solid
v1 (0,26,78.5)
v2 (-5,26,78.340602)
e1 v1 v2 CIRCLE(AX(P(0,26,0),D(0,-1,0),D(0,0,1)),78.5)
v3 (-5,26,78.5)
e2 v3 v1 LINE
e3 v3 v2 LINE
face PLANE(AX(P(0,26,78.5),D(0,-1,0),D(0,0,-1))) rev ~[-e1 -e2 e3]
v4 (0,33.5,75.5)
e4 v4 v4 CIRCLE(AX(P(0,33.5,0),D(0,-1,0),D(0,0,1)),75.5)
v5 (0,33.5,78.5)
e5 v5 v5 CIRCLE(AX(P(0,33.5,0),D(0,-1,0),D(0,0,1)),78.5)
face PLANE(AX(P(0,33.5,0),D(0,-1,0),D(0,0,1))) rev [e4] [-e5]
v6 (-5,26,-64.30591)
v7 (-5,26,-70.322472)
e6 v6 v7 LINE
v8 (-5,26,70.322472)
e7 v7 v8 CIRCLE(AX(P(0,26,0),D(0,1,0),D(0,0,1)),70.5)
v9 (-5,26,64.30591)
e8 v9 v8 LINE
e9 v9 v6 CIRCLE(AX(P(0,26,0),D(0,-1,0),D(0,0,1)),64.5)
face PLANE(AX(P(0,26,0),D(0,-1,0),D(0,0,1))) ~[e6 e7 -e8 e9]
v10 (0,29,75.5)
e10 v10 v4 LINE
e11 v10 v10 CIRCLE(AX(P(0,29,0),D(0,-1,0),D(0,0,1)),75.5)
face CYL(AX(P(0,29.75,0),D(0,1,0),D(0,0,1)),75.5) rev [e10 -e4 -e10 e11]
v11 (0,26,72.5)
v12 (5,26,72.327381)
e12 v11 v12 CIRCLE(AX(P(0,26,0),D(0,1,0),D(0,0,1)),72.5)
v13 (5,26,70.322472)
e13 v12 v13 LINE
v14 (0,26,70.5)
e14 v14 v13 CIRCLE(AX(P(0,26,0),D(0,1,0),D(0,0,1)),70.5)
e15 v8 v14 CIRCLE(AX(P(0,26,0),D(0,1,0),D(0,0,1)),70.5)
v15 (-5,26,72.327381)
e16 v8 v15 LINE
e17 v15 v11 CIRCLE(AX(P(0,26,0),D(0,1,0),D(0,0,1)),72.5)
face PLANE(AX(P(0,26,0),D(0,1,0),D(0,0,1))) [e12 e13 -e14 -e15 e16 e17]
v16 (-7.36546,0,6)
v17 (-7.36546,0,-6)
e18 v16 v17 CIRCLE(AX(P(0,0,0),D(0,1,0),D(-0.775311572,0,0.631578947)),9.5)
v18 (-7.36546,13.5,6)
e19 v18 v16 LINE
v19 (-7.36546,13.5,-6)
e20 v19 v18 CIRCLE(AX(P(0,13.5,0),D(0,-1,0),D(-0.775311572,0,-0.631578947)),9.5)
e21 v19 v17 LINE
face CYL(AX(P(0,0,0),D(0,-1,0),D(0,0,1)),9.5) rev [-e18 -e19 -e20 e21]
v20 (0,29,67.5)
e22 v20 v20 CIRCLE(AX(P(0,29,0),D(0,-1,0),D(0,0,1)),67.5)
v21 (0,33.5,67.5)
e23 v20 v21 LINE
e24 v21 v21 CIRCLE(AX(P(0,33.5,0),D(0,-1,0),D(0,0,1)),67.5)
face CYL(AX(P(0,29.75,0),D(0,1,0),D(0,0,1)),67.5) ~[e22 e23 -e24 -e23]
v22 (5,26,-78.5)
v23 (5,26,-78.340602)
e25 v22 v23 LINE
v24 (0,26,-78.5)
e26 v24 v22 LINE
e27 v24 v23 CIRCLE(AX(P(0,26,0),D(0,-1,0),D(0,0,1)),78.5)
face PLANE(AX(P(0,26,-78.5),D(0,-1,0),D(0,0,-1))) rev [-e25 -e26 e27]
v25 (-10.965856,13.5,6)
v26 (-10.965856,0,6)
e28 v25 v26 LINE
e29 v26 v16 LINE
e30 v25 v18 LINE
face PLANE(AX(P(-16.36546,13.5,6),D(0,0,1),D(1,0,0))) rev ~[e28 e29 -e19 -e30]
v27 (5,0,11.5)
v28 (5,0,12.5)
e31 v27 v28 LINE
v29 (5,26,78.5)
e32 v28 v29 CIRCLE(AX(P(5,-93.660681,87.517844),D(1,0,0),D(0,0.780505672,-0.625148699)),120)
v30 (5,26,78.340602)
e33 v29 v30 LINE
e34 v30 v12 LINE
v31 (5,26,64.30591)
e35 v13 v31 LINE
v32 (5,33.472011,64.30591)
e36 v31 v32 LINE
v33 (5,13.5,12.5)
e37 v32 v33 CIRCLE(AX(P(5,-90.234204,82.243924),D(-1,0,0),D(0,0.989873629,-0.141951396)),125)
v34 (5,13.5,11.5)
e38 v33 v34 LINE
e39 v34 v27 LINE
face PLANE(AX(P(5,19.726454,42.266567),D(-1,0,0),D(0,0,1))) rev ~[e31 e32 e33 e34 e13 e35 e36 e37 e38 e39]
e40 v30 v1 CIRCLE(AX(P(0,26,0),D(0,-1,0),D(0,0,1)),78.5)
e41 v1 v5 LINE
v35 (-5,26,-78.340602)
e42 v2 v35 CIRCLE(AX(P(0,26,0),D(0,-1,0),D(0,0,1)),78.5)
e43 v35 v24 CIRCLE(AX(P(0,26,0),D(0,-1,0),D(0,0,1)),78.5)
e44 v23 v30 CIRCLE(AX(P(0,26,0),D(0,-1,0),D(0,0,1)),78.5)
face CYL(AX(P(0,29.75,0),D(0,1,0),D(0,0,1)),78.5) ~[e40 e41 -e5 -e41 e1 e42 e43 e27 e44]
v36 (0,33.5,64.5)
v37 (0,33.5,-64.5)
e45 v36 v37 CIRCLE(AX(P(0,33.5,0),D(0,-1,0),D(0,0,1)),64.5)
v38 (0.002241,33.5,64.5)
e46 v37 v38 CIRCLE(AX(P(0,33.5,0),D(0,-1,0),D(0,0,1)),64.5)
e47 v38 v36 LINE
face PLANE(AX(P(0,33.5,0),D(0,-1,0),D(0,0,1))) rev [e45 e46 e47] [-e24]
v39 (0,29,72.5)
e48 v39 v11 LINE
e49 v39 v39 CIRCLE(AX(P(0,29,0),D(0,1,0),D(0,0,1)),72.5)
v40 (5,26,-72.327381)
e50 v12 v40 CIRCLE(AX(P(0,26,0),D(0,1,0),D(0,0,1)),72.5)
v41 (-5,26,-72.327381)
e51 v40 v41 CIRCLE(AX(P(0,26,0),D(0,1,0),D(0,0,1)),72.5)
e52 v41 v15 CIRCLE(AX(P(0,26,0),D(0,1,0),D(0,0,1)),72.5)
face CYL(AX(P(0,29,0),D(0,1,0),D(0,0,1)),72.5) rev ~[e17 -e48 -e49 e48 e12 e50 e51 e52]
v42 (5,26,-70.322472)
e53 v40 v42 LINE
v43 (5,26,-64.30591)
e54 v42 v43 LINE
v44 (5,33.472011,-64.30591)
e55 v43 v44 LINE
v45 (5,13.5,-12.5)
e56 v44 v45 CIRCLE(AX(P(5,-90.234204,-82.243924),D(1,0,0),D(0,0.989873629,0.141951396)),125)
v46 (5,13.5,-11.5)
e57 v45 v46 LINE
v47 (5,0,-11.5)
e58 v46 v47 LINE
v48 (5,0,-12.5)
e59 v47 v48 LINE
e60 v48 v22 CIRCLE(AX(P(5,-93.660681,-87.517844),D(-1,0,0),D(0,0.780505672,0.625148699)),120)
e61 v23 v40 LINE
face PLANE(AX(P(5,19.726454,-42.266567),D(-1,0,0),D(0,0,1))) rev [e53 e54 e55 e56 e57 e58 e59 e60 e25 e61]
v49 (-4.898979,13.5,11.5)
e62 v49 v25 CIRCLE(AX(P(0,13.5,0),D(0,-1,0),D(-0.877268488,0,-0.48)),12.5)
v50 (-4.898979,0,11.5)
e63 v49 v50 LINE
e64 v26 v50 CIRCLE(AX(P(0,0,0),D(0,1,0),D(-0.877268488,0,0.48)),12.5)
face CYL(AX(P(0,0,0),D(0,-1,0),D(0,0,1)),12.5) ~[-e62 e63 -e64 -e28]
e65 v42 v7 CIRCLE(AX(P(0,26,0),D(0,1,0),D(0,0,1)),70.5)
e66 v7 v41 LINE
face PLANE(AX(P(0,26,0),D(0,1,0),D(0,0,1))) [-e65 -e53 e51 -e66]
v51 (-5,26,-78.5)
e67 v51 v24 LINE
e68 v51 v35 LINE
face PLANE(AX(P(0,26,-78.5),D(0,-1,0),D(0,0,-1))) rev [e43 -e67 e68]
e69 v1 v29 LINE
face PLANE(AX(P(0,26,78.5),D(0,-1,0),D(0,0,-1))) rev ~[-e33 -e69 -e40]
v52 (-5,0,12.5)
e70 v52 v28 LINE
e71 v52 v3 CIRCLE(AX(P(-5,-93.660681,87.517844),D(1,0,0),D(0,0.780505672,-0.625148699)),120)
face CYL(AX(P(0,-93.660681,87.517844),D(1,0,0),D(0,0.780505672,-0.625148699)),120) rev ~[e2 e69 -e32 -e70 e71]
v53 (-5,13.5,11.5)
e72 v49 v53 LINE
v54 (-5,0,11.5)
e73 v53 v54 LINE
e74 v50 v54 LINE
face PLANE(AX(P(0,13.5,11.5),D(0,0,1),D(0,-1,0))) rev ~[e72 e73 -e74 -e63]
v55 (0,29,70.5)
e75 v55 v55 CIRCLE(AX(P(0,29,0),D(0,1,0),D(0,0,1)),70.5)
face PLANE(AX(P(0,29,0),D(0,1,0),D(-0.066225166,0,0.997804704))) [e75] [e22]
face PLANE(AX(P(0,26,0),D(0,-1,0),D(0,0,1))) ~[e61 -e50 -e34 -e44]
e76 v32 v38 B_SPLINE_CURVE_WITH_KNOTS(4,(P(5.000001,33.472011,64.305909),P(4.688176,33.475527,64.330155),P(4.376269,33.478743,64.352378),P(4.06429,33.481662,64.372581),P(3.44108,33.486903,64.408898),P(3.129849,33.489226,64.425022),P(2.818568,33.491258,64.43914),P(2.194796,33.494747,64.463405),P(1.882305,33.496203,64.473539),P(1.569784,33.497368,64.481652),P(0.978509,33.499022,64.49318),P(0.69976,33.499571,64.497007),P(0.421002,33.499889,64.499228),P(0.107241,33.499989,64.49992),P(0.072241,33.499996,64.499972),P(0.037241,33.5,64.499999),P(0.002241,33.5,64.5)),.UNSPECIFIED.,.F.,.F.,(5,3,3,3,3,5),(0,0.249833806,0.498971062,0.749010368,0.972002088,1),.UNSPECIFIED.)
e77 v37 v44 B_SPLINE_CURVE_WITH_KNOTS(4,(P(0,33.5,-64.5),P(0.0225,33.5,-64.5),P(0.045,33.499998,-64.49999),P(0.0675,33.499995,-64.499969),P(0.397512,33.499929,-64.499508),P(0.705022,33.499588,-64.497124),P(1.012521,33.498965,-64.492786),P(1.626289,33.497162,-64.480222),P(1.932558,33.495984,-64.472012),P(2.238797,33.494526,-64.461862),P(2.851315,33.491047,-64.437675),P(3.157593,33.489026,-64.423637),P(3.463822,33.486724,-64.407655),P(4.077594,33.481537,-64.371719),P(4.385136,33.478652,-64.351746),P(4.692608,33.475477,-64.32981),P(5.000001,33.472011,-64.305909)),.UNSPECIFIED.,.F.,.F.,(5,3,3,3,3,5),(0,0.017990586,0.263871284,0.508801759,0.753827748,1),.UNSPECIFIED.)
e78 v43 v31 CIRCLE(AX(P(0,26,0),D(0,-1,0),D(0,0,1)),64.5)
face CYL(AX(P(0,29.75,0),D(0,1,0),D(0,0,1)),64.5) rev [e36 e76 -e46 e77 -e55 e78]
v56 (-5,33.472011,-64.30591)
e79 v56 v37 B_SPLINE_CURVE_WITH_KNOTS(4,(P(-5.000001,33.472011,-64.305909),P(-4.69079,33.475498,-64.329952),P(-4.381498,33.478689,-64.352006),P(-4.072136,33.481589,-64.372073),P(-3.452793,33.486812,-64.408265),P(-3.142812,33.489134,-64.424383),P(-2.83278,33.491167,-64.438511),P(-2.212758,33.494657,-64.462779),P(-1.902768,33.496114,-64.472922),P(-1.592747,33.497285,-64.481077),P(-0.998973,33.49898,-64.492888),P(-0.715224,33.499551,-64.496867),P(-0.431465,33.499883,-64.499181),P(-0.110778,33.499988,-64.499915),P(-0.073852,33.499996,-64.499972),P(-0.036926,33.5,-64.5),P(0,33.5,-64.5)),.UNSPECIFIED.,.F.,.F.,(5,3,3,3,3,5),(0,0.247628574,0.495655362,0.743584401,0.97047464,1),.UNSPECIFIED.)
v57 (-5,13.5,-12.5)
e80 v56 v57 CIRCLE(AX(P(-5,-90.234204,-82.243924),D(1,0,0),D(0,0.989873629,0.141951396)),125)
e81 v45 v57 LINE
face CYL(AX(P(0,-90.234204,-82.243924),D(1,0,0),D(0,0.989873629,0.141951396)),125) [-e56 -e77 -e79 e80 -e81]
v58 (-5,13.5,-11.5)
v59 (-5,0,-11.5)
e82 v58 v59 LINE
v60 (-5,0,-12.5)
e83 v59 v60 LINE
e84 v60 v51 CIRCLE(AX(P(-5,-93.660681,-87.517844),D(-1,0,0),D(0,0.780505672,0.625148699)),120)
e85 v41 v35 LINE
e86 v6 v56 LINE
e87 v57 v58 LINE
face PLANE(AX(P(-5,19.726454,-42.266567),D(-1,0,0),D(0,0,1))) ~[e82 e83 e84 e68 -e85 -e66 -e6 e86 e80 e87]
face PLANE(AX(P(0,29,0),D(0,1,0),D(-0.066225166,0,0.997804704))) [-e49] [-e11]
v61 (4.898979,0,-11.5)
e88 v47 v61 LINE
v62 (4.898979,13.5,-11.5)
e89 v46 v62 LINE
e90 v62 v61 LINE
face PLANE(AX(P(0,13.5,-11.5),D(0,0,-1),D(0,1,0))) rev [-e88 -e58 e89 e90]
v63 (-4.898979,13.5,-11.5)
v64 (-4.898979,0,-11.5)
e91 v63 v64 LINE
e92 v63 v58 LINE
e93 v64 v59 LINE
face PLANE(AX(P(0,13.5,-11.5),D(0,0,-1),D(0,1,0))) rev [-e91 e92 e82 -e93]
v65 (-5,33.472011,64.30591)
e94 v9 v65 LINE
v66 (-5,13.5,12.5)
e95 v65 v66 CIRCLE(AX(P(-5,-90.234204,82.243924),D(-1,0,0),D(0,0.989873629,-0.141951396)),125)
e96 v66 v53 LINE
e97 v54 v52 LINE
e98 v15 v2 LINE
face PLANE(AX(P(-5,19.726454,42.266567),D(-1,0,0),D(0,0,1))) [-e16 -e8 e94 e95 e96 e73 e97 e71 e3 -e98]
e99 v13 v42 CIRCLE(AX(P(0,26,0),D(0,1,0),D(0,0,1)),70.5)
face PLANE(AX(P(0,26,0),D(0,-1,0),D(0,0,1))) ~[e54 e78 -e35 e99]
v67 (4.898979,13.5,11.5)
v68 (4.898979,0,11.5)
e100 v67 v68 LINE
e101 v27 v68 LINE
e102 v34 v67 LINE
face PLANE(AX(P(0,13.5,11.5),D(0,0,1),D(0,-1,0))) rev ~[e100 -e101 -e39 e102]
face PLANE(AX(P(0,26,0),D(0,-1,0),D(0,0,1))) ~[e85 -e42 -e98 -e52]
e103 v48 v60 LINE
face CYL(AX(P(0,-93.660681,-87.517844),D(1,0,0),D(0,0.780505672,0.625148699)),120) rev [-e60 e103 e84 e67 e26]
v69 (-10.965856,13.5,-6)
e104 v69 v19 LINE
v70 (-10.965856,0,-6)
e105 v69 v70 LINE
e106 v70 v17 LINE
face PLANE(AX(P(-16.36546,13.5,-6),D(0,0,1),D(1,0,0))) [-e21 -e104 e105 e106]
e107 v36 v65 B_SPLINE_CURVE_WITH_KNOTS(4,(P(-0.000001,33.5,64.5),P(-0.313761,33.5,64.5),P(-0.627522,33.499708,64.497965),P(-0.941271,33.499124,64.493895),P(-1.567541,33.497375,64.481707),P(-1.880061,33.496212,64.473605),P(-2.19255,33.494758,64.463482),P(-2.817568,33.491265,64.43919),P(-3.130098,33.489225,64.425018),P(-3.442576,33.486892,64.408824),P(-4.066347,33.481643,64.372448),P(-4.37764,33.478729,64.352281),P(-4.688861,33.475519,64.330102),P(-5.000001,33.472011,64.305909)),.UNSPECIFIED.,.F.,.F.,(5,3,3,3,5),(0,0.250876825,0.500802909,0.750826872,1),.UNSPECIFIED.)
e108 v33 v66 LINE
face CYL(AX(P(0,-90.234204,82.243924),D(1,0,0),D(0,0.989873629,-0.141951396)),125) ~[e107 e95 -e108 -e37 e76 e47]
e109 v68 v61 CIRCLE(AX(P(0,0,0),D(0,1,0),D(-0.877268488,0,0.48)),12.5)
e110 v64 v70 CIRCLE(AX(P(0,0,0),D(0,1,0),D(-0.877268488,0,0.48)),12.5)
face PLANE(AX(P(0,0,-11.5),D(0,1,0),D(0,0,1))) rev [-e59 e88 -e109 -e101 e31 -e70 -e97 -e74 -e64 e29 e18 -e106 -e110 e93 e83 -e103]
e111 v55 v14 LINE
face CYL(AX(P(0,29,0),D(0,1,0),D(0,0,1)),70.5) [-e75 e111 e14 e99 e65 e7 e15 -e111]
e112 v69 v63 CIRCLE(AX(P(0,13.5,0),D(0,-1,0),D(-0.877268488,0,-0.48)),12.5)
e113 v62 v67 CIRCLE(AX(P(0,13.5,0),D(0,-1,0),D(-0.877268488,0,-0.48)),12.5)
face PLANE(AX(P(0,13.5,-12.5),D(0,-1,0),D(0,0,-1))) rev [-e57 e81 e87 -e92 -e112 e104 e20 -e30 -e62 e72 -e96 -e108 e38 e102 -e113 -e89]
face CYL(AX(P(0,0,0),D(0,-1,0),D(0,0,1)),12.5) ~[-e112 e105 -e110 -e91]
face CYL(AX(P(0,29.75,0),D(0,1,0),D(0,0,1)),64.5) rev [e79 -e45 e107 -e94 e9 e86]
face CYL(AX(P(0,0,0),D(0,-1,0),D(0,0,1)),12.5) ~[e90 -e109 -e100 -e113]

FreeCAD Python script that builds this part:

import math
import FreeCAD as App
import Part
import Sketcher
Q = App.Units.Quantity

doc = App.newDocument("Part")
body = doc.addObject("PartDesign::Body", "Body")

sketch1 = doc.addObject("Sketcher::SketchObject", "Sketch")
body.addObject(sketch1)
sketch1.AttachmentSupport = (doc.XZ_Plane, [""])
sketch1.MapMode = "FlatFace"
sketch1.addGeometry([
    Part.Circle(App.Vector(0, 0, 0), App.Vector(0, 0, 1), 12),
    Part.Circle(App.Vector(0, 0, 0), App.Vector(0, 0, 1), 10),
], False)
sketch1.addConstraint([
    Sketcher.Constraint("Coincident", 0, 3, -1, 1),
    Sketcher.Constraint("Coincident", 1, 3, -1, 1),
    Sketcher.Constraint("Diameter", 0, Q("25 mm")),
    Sketcher.Constraint("Diameter", 1, Q("19 mm")),
])
pad1 = doc.addObject("PartDesign::Pad", "Pad")
body.addObject(pad1)
pad1.Profile = sketch1
pad1.Length = 13.5
pad1.Reversed = True

sketch2 = doc.addObject("Sketcher::SketchObject", "Sketch001")
body.addObject(sketch2)
sketch2.AttachmentSupport = (doc.XZ_Plane, [""])
sketch2.MapMode = "FlatFace"
sketch2.AttachmentOffset = App.Placement(App.Vector(0, 0, -13.5), App.Rotation())
sketch2.addGeometry([
    Part.LineSegment(App.Vector(-16, -6, 0), App.Vector(-16, 6, 0)),
    Part.LineSegment(App.Vector(-16, 6, 0), App.Vector(-7, 6, 0)),
    Part.LineSegment(App.Vector(-7, 6, 0), App.Vector(-7, -6, 0)),
    Part.LineSegment(App.Vector(-7, -6, 0), App.Vector(-16, -6, 0)),
], False)
sketch2.addConstraint([
    Sketcher.Constraint("Coincident", 0, 2, 1, 1),
    Sketcher.Constraint("Coincident", 1, 2, 2, 1),
    Sketcher.Constraint("Coincident", 2, 2, 3, 1),
    Sketcher.Constraint("Coincident", 3, 2, 0, 1),
    Sketcher.Constraint("Vertical", 0),
    Sketcher.Constraint("Horizontal", 1),
    Sketcher.Constraint("Vertical", 2),
    Sketcher.Constraint("Horizontal", 3),
    Sketcher.Constraint("DistanceX", 1, 1, 1, 2, Q("9 mm")),
    Sketcher.Constraint("DistanceY", 0, 1, 0, 2, Q("12 mm")),
    Sketcher.Constraint("DistanceY", -1, 1, 0, 2, Q("6 mm")),
    Sketcher.Constraint("DistanceX", 0, 2, -1, 1, Q("16.36546 mm")),
])
pocket1 = doc.addObject("PartDesign::Pocket", "Pocket")
body.addObject(pocket1)
pocket1.Profile = sketch2
pocket1.Type = "ThroughAll"
pocket1.Reversed = True

sketch3 = doc.addObject("Sketcher::SketchObject", "Sketch002")
body.addObject(sketch3)
sketch3.AttachmentSupport = (doc.YZ_Plane, [""])
sketch3.MapMode = "FlatFace"
sketch3.addGeometry([
    Part.LineSegment(App.Vector(33.5, 64.5, 0), App.Vector(26, 64.5, 0)),
    Part.LineSegment(App.Vector(26, 64.5, 0), App.Vector(26, 78.5, 0)),
    Part.ArcOfCircle(Part.Circle(App.Vector(-93.7, 87.5, 0), App.Vector(0, 0, 1), 120), math.radians(-39), math.radians(-4)),
    Part.LineSegment(App.Vector(0, 12.5, 0), App.Vector(0, 11.5, 0)),
    Part.LineSegment(App.Vector(0, 11.5, 0), App.Vector(13.5, 11.5, 0)),
    Part.LineSegment(App.Vector(13.5, 11.5, 0), App.Vector(13.5, 12.5, 0)),
    Part.ArcOfCircle(Part.Circle(App.Vector(-90.2, 82.2, 0), App.Vector(0, 0, 1), 125), math.radians(-34), math.radians(-8)),
], False)
sketch3.addConstraint([
    Sketcher.Constraint("Coincident", 0, 2, 1, 1),
    Sketcher.Constraint("Coincident", 1, 2, 2, 2),
    Sketcher.Constraint("Coincident", 2, 1, 3, 1),
    Sketcher.Constraint("Coincident", 3, 2, 4, 1),
    Sketcher.Constraint("Coincident", 4, 2, 5, 1),
    Sketcher.Constraint("Coincident", 5, 2, 6, 1),
    Sketcher.Constraint("Coincident", 6, 2, 0, 1),
    Sketcher.Constraint("Horizontal", 0),
    Sketcher.Constraint("Vertical", 1),
    Sketcher.Constraint("Vertical", 3),
    Sketcher.Constraint("Horizontal", 4),
    Sketcher.Constraint("Vertical", 5),
    Sketcher.Constraint("PointOnObject", 2, 1, -2),
    Sketcher.Constraint("Horizontal", 2, 1, 5, 2),
    Sketcher.Constraint("Radius", 2, Q("120 mm")),
    Sketcher.Constraint("Radius", 6, Q("125 mm")),
    Sketcher.Constraint("DistanceY", 1, 1, 1, 2, Q("14 mm")),
    Sketcher.Constraint("DistanceY", 3, 2, 3, 1, Q("1 mm")),
    Sketcher.Constraint("DistanceX", 0, 2, 0, 1, Q("7.5 mm")),
    Sketcher.Constraint("DistanceX", 4, 1, 4, 2, Q("13.5 mm")),
    Sketcher.Constraint("DistanceX", -1, 1, 0, 2, Q("26 mm")),
    Sketcher.Constraint("DistanceY", 2, 1, 0, 2, Q("52 mm")),
    Sketcher.Constraint("DistanceY", -1, 1, 0, 2, Q("64.5 mm")),
])
pad2 = doc.addObject("PartDesign::Pad", "Pad001")
body.addObject(pad2)
pad2.Profile = sketch3
pad2.Length = 10
pad2.Midplane = True

sketch4 = doc.addObject("Sketcher::SketchObject", "Sketch003")
body.addObject(sketch4)
sketch4.AttachmentSupport = (doc.XZ_Plane, [""])
sketch4.MapMode = "FlatFace"
sketch4.AttachmentOffset = App.Placement(App.Vector(0, 0, -26), App.Rotation())
sketch4.addGeometry([
    Part.Circle(App.Vector(0, 0, 0), App.Vector(0, 0, 1), 76),
    Part.Circle(App.Vector(0, 0, 0), App.Vector(0, 0, 1), 68),
], False)
sketch4.addConstraint([
    Sketcher.Constraint("Coincident", 0, 3, -1, 1),
    Sketcher.Constraint("Coincident", 1, 3, -1, 1),
    Sketcher.Constraint("Diameter", 0, Q("151 mm")),
    Sketcher.Constraint("Diameter", 1, Q("135 mm")),
])
pad3 = doc.addObject("PartDesign::Pad", "Pad002")
body.addObject(pad3)
pad3.Profile = sketch4
pad3.Length = 3
pad3.Reversed = True

sketch5 = doc.addObject("Sketcher::SketchObject", "Sketch004")
body.addObject(sketch5)
sketch5.AttachmentSupport = (doc.YZ_Plane, [""])
sketch5.MapMode = "FlatFace"
sketch5.addGeometry([
    Part.LineSegment(App.Vector(33.5, -75.5, 0), App.Vector(26, -75.5, 0)),
    Part.LineSegment(App.Vector(26, -75.5, 0), App.Vector(26, -78.5, 0)),
    Part.LineSegment(App.Vector(26, -78.5, 0), App.Vector(33.5, -78.5, 0)),
    Part.LineSegment(App.Vector(33.5, -78.5, 0), App.Vector(33.5, -75.5, 0)),
    Part.LineSegment(App.Vector(33.5, -64.5, 0), App.Vector(26, -64.5, 0)),
    Part.LineSegment(App.Vector(26, -64.5, 0), App.Vector(26, -67.5, 0)),
    Part.LineSegment(App.Vector(26, -67.5, 0), App.Vector(33.5, -67.5, 0)),
    Part.LineSegment(App.Vector(33.5, -67.5, 0), App.Vector(33.5, -64.5, 0)),
], False)
sketch5.addConstraint([
    Sketcher.Constraint("Coincident", 0, 2, 1, 1),
    Sketcher.Constraint("Coincident", 1, 2, 2, 1),
    Sketcher.Constraint("Coincident", 2, 2, 3, 1),
    Sketcher.Constraint("Coincident", 3, 2, 0, 1),
    Sketcher.Constraint("Coincident", 4, 2, 5, 1),
    Sketcher.Constraint("Coincident", 5, 2, 6, 1),
    Sketcher.Constraint("Coincident", 6, 2, 7, 1),
    Sketcher.Constraint("Coincident", 7, 2, 4, 1),
    Sketcher.Constraint("Horizontal", 0),
    Sketcher.Constraint("Vertical", 1),
    Sketcher.Constraint("Horizontal", 2),
    Sketcher.Constraint("Vertical", 3),
    Sketcher.Constraint("Horizontal", 4),
    Sketcher.Constraint("Vertical", 5),
    Sketcher.Constraint("Horizontal", 6),
    Sketcher.Constraint("Vertical", 7),
    Sketcher.Constraint("Vertical", 1, 2, 4, 2),
    Sketcher.Constraint("Vertical", 3, 2, 6, 2),
    Sketcher.Constraint("Equal", 3, 5),
    Sketcher.Constraint("DistanceY", 1, 2, 1, 1, Q("3 mm")),
    Sketcher.Constraint("DistanceX", 0, 2, 0, 1, Q("7.5 mm")),
    Sketcher.Constraint("DistanceX", -1, 1, 0, 2, Q("26 mm")),
    Sketcher.Constraint("DistanceY", 0, 2, 4, 2, Q("11 mm")),
    Sketcher.Constraint("DistanceY", 0, 2, -1, 1, Q("75.5 mm")),
])
revolution = doc.addObject("PartDesign::Revolution", "Revolution")
body.addObject(revolution)
revolution.Profile = sketch5
revolution.ReferenceAxis = (sketch5, ["H_Axis"])
revolution.Angle = 360
doc.recompute()

mirrored = doc.addObject("PartDesign::Mirrored", "Mirrored")
body.addObject(mirrored)
mirrored.Originals = [pad2]
mirrored.MirrorPlane = (doc.XY_Plane, [""])
body.Tip = mirrored

sketch6 = doc.addObject("Sketcher::SketchObject", "Sketch005")
body.addObject(sketch6)
sketch6.AttachmentSupport = (doc.XZ_Plane, [""])
sketch6.MapMode = "FlatFace"
sketch6.AttachmentOffset = App.Placement(App.Vector(0, 0, -29), App.Rotation())
sketch6.addGeometry([
    Part.Circle(App.Vector(0, 0, 0), App.Vector(0, 0, 1), 72),
    Part.Circle(App.Vector(0, 0, 0), App.Vector(0, 0, 1), 70),
], False)
sketch6.addConstraint([
    Sketcher.Constraint("Coincident", 0, 3, -1, 1),
    Sketcher.Constraint("Coincident", 1, 3, -1, 1),
    Sketcher.Constraint("Diameter", 0, Q("145 mm")),
    Sketcher.Constraint("Diameter", 1, Q("141 mm")),
])
pocket2 = doc.addObject("PartDesign::Pocket", "Pocket001")
body.addObject(pocket2)
pocket2.Profile = sketch6
pocket2.Length = 3
pocket2.Reversed = True

doc.recompute()
